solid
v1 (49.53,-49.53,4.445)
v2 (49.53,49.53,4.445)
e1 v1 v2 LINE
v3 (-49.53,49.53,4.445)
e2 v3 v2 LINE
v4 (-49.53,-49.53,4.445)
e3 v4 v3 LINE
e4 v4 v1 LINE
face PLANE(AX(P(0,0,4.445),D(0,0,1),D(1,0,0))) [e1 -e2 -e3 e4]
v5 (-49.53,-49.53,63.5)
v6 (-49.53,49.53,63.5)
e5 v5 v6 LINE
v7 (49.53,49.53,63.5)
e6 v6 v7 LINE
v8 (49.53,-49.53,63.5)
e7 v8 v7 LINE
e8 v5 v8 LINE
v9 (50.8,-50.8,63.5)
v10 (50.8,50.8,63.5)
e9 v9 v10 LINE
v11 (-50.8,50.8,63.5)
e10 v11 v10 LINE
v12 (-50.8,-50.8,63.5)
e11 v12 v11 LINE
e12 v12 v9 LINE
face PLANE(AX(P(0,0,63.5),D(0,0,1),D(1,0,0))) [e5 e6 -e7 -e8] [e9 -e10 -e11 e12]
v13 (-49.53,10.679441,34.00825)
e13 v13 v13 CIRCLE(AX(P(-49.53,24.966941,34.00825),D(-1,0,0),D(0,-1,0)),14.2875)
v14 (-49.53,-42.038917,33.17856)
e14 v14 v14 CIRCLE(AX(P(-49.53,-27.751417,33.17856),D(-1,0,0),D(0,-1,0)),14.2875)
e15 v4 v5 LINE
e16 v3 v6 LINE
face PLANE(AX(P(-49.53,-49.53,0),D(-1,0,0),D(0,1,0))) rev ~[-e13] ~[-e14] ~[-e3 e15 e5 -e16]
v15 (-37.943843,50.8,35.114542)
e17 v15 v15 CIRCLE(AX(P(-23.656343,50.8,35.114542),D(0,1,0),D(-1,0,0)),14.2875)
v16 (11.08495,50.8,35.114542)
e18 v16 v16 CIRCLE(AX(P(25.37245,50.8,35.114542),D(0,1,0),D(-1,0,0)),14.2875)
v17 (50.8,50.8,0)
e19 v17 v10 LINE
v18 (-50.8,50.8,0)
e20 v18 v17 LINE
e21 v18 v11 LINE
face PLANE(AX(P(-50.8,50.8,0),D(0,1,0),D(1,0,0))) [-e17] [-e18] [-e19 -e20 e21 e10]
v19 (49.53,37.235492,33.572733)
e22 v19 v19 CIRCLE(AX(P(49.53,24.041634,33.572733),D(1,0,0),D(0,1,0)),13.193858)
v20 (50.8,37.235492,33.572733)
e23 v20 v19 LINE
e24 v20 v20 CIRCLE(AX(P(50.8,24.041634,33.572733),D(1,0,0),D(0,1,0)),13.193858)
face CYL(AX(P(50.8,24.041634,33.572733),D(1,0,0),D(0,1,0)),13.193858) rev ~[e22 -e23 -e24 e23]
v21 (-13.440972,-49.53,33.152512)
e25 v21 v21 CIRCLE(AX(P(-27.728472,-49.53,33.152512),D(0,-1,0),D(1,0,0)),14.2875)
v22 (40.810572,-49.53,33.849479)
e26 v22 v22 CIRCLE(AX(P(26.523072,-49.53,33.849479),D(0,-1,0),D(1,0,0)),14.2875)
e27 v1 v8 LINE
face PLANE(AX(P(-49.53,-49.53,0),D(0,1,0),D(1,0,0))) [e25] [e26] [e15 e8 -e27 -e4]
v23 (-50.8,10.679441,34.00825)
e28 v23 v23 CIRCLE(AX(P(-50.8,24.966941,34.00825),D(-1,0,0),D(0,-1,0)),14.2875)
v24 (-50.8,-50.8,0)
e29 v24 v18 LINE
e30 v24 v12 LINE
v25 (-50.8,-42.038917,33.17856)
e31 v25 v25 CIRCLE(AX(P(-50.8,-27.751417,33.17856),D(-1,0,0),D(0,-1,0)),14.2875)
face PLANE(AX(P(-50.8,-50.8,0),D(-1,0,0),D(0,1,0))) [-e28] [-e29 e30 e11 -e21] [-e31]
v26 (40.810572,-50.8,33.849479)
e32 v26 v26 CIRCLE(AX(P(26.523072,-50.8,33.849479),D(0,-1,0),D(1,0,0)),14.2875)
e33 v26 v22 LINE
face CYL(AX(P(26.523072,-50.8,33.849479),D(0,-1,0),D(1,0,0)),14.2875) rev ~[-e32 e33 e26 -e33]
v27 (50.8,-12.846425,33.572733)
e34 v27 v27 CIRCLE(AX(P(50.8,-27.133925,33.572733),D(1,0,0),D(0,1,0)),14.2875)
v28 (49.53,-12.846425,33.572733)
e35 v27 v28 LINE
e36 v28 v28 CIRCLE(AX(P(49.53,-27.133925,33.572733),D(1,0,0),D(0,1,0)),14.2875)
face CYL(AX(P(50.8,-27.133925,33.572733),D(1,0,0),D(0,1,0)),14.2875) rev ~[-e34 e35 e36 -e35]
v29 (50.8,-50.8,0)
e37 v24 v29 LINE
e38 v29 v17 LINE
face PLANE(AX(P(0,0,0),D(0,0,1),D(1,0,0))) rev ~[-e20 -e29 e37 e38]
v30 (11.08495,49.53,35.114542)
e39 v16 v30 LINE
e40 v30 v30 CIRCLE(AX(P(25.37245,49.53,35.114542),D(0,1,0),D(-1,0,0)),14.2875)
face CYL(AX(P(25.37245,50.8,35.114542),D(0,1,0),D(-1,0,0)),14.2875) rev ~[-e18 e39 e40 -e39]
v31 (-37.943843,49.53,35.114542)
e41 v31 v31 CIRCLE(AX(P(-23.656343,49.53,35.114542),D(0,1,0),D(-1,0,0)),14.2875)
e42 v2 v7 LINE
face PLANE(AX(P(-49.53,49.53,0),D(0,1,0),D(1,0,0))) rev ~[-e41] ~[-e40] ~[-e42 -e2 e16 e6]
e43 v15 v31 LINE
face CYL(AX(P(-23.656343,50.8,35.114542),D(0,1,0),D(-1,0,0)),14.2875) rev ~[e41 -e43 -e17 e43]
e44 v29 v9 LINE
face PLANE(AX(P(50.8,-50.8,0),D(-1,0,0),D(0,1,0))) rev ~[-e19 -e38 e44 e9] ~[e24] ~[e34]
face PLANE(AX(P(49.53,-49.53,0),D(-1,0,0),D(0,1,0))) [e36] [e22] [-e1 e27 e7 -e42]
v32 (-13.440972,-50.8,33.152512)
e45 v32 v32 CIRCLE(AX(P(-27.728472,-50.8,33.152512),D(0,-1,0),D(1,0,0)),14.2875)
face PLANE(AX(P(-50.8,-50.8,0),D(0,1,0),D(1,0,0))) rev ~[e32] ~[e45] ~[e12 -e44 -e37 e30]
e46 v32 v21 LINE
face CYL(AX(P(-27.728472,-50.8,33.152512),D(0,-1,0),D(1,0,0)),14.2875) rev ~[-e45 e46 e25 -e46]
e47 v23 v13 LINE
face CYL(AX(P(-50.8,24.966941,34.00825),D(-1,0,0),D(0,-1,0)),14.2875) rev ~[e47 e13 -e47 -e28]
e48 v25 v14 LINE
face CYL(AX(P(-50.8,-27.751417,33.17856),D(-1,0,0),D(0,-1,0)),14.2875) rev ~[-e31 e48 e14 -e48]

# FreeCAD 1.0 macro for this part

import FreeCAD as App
import Part
import Sketcher
from FreeCAD import Vector
Q = App.Units.Quantity

doc = App.newDocument("Part")
body = doc.addObject("PartDesign::Body", "Body")

sketch1 = body.newObject("Sketcher::SketchObject", "Sketch")
sketch1.AttachmentSupport = (doc.getObject("XY_Plane"), [""])
sketch1.MapMode = "FlatFace"
sketch1.addGeometry(Part.LineSegment(Vector(-50, 50, 0), Vector(-50, -50, 0)), False)
sketch1.addGeometry(Part.LineSegment(Vector(-50, -50, 0), Vector(50, -50, 0)), False)
sketch1.addGeometry(Part.LineSegment(Vector(50, -50, 0), Vector(50, 50, 0)), False)
sketch1.addGeometry(Part.LineSegment(Vector(50, 50, 0), Vector(-50, 50, 0)), False)
sketch1.addConstraint(Sketcher.Constraint("Coincident", 0, 2, 1, 1))
sketch1.addConstraint(Sketcher.Constraint("Coincident", 1, 2, 2, 1))
sketch1.addConstraint(Sketcher.Constraint("Coincident", 2, 2, 3, 1))
sketch1.addConstraint(Sketcher.Constraint("Coincident", 3, 2, 0, 1))
sketch1.addConstraint(Sketcher.Constraint("Vertical", 0))
sketch1.addConstraint(Sketcher.Constraint("Horizontal", 1))
sketch1.addConstraint(Sketcher.Constraint("Vertical", 2))
sketch1.addConstraint(Sketcher.Constraint("Horizontal", 3))
sketch1.addConstraint(Sketcher.Constraint("Symmetric", 0, 2, 2, 2, -1, 1))
sketch1.addConstraint(Sketcher.Constraint("Equal", 3, 0))
sketch1.addConstraint(Sketcher.Constraint("DistanceX", 1, 1, 1, 2, Q("3.9 in")))
pad1 = body.newObject("PartDesign::Pad", "Pad")
pad1.Profile = sketch1
pad1.Length = Q("0.175 in")

sketch2 = body.newObject("Sketcher::SketchObject", "Sketch001")
sketch2.AttachmentSupport = (doc.getObject("XY_Plane"), [""])
sketch2.MapMode = "FlatFace"
sketch2.addGeometry(Part.LineSegment(Vector(-51, 51, 0), Vector(-51, -51, 0)), False)
sketch2.addGeometry(Part.LineSegment(Vector(-51, -51, 0), Vector(51, -51, 0)), False)
sketch2.addGeometry(Part.LineSegment(Vector(51, -51, 0), Vector(51, 51, 0)), False)
sketch2.addGeometry(Part.LineSegment(Vector(51, 51, 0), Vector(-51, 51, 0)), False)
sketch2.addGeometry(Part.LineSegment(Vector(50, -50, 0), Vector(-50, -50, 0)), False)
sketch2.addGeometry(Part.LineSegment(Vector(-50, -50, 0), Vector(-50, 50, 0)), False)
sketch2.addGeometry(Part.LineSegment(Vector(-50, 50, 0), Vector(50, 50, 0)), False)
sketch2.addGeometry(Part.LineSegment(Vector(50, 50, 0), Vector(50, -50, 0)), False)
sketch2.addConstraint(Sketcher.Constraint("Coincident", 0, 2, 1, 1))
sketch2.addConstraint(Sketcher.Constraint("Coincident", 1, 2, 2, 1))
sketch2.addConstraint(Sketcher.Constraint("Coincident", 2, 2, 3, 1))
sketch2.addConstraint(Sketcher.Constraint("Coincident", 3, 2, 0, 1))
sketch2.addConstraint(Sketcher.Constraint("Coincident", 4, 2, 5, 1))
sketch2.addConstraint(Sketcher.Constraint("Coincident", 5, 2, 6, 1))
sketch2.addConstraint(Sketcher.Constraint("Coincident", 6, 2, 7, 1))
sketch2.addConstraint(Sketcher.Constraint("Coincident", 7, 2, 4, 1))
sketch2.addConstraint(Sketcher.Constraint("Vertical", 0))
sketch2.addConstraint(Sketcher.Constraint("Horizontal", 1))
sketch2.addConstraint(Sketcher.Constraint("Vertical", 2))
sketch2.addConstraint(Sketcher.Constraint("Horizontal", 3))
sketch2.addConstraint(Sketcher.Constraint("Horizontal", 4))
sketch2.addConstraint(Sketcher.Constraint("Vertical", 5))
sketch2.addConstraint(Sketcher.Constraint("Horizontal", 6))
sketch2.addConstraint(Sketcher.Constraint("Vertical", 7))
sketch2.addConstraint(Sketcher.Constraint("Symmetric", 0, 2, 2, 2, -1, 1))
sketch2.addConstraint(Sketcher.Constraint("Symmetric", 4, 2, 6, 2, -1, 1))
sketch2.addConstraint(Sketcher.Constraint("Equal", 3, 0))
sketch2.addConstraint(Sketcher.Constraint("Equal", 6, 5))
sketch2.addConstraint(Sketcher.Constraint("DistanceX", 1, 1, 1, 2, Q("4 in")))
sketch2.addConstraint(Sketcher.Constraint("DistanceX", 4, 2, 4, 1, Q("3.9 in")))
pad2 = body.newObject("PartDesign::Pad", "Pad001")
pad2.Profile = sketch2
pad2.Length = Q("2.5 in")

sketch3 = body.newObject("Sketcher::SketchObject", "Sketch002")
sketch3.AttachmentSupport = (doc.getObject("XZ_Plane"), [""])
sketch3.MapMode = "FlatFace"
sketch3.AttachmentOffset = App.Placement(Vector(0, 0, 2 * 25.4), App.Rotation())
sketch3.addGeometry(Part.Circle(Vector(-28, 33, 0), Vector(0, 0, 1), 14), False)
sketch3.addGeometry(Part.Circle(Vector(27, 34, 0), Vector(0, 0, 1), 14), False)
sketch3.addConstraint(Sketcher.Constraint("Equal", 0, 1))
sketch3.addConstraint(Sketcher.Constraint("Diameter", 0, Q("1.125 in")))
sketch3.addConstraint(Sketcher.Constraint("DistanceX", 0, 3, -1, 1, Q("27.728472 mm")))
sketch3.addConstraint(Sketcher.Constraint("DistanceX", -1, 1, 1, 3, Q("26.523072 mm")))
sketch3.addConstraint(Sketcher.Constraint("DistanceY", -1, 1, 1, 3, Q("33.849479 mm")))
sketch3.addConstraint(Sketcher.Constraint("DistanceY", -1, 1, 0, 3, Q("33.152512 mm")))
pocket1 = body.newObject("PartDesign::Pocket", "Pocket")
pocket1.Profile = sketch3
pocket1.Length = Q("1 in")

sketch4 = body.newObject("Sketcher::SketchObject", "Sketch003")
sketch4.AttachmentSupport = (doc.getObject("YZ_Plane"), [""])
sketch4.MapMode = "FlatFace"
sketch4.AttachmentOffset = App.Placement(Vector(0, 0, 2 * 25.4), App.Rotation())
sketch4.addGeometry(Part.Circle(Vector(-27, 34, 0), Vector(0, 0, 1), 14), False)
sketch4.addGeometry(Part.Circle(Vector(24, 34, 0), Vector(0, 0, 1), 13), False)
sketch4.addConstraint(Sketcher.Constraint("Horizontal", 0, 3, 1, 3))
sketch4.addConstraint(Sketcher.Constraint("Diameter", 0, Q("1.125 in")))
sketch4.addConstraint(Sketcher.Constraint("Diameter", 1, Q("26.387716 mm")))
sketch4.addConstraint(Sketcher.Constraint("DistanceX", 0, 3, 1, 3, Q("51.175559 mm")))
sketch4.addConstraint(Sketcher.Constraint("DistanceX", 0, 3, -1, 1, Q("27.133925 mm")))
sketch4.addConstraint(Sketcher.Constraint("DistanceY", -1, 1, 0, 3, Q("33.572733 mm")))
pocket2 = body.newObject("PartDesign::Pocket", "Pocket001")
pocket2.Profile = sketch4
pocket2.Length = Q("1 in")

sketch5 = body.newObject("Sketcher::SketchObject", "Sketch004")
sketch5.AttachmentSupport = (doc.getObject("XZ_Plane"), [""])
sketch5.MapMode = "FlatFace"
sketch5.AttachmentOffset = App.Placement(Vector(0, 0, -2 * 25.4), App.Rotation())
sketch5.addGeometry(Part.Circle(Vector(27, 34, 0), Vector(0, 0, 1), 14), False)
sketch5.addGeometry(Part.Circle(Vector(-28, 34, 0), Vector(0, 0, 1), 14), False)
sketch5.addConstraint(Sketcher.Constraint("Horizontal", 0, 3, 1, 3))
sketch5.addConstraint(Sketcher.Constraint("Diameter", 0, Q("1.125 in")))
sketch5.addConstraint(Sketcher.Constraint("Diameter", 1, Q("28.851818 mm")))
sketch5.addConstraint(Sketcher.Constraint("DistanceY", -1, 1, 0, 3, Q("33.915631 mm")))
sketch5.addConstraint(Sketcher.Constraint("DistanceX", -1, 1, 0, 3, Q("27.319755 mm")))
sketch5.addConstraint(Sketcher.Constraint("DistanceX", 1, 3, -1, 1, Q("28.376452 mm")))
pocket3 = body.newObject("PartDesign::Pocket", "Pocket002")
pocket3.Profile = sketch5
pocket3.Length = Q("1 in")

sketch6 = body.newObject("Sketcher::SketchObject", "Sketch005")
sketch6.AttachmentSupport = (doc.getObject("YZ_Plane"), [""])
sketch6.MapMode = "FlatFace"
sketch6.AttachmentOffset = App.Placement(Vector(0, 0, -2 * 25.4), App.Rotation())
sketch6.addGeometry(Part.Circle(Vector(25, 34, 0), Vector(0, 0, 1), 14), False)
sketch6.addGeometry(Part.Circle(Vector(-28, 33, 0), Vector(0, 0, 1), 14), False)
sketch6.addConstraint(Sketcher.Constraint("Equal", 0, 1))
sketch6.addConstraint(Sketcher.Constraint("Diameter", 0, Q("1.125 in")))
sketch6.addConstraint(Sketcher.Constraint("DistanceX", -1, 1, 0, 3, Q("24.966941 mm")))
sketch6.addConstraint(Sketcher.Constraint("DistanceY", -1, 1, 0, 3, Q("34.00825 mm")))
sketch6.addConstraint(Sketcher.Constraint("DistanceY", -1, 1, 1, 3, Q("33.17856 mm")))
sketch6.addConstraint(Sketcher.Constraint("DistanceX", 1, 3, -1, 1, Q("27.751417 mm")))
pocket4 = body.newObject("PartDesign::Pocket", "Pocket003")
pocket4.Profile = sketch6
pocket4.Length = Q("1 in")
pocket4.Reversed = True

sketch7 = body.newObject("Sketcher::SketchObject", "Sketch006")
sketch7.AttachmentSupport = (doc.getObject("XZ_Plane"), [""])
sketch7.MapMode = "FlatFace"
sketch7.AttachmentOffset = App.Placement(Vector(0, 0, -2 * 25.4), App.Rotation())
sketch7.addGeometry(Part.Circle(Vector(25, 35, 0), Vector(0, 0, 1), 14), False)
sketch7.addGeometry(Part.Circle(Vector(-24, 35, 0), Vector(0, 0, 1), 14), False)
sketch7.addConstraint(Sketcher.Constraint("Equal", 0, 1))
sketch7.addConstraint(Sketcher.Constraint("Horizontal", 0, 3, 1, 3))
sketch7.addConstraint(Sketcher.Constraint("Diameter", 0, Q("1.125 in")))
sketch7.addConstraint(Sketcher.Constraint("DistanceX", -1, 1, 0, 3, Q("25.37245 mm")))
sketch7.addConstraint(Sketcher.Constraint("DistanceY", -1, 1, 0, 3, Q("35.114542 mm")))
sketch7.addConstraint(Sketcher.Constraint("DistanceX", 1, 3, -1, 1, Q("23.656343 mm")))
pocket5 = body.newObject("PartDesign::Pocket", "Pocket004")
pocket5.Profile = sketch7
pocket5.Length = Q("1 in")
pocket5.Reversed = True

doc.recompute()
